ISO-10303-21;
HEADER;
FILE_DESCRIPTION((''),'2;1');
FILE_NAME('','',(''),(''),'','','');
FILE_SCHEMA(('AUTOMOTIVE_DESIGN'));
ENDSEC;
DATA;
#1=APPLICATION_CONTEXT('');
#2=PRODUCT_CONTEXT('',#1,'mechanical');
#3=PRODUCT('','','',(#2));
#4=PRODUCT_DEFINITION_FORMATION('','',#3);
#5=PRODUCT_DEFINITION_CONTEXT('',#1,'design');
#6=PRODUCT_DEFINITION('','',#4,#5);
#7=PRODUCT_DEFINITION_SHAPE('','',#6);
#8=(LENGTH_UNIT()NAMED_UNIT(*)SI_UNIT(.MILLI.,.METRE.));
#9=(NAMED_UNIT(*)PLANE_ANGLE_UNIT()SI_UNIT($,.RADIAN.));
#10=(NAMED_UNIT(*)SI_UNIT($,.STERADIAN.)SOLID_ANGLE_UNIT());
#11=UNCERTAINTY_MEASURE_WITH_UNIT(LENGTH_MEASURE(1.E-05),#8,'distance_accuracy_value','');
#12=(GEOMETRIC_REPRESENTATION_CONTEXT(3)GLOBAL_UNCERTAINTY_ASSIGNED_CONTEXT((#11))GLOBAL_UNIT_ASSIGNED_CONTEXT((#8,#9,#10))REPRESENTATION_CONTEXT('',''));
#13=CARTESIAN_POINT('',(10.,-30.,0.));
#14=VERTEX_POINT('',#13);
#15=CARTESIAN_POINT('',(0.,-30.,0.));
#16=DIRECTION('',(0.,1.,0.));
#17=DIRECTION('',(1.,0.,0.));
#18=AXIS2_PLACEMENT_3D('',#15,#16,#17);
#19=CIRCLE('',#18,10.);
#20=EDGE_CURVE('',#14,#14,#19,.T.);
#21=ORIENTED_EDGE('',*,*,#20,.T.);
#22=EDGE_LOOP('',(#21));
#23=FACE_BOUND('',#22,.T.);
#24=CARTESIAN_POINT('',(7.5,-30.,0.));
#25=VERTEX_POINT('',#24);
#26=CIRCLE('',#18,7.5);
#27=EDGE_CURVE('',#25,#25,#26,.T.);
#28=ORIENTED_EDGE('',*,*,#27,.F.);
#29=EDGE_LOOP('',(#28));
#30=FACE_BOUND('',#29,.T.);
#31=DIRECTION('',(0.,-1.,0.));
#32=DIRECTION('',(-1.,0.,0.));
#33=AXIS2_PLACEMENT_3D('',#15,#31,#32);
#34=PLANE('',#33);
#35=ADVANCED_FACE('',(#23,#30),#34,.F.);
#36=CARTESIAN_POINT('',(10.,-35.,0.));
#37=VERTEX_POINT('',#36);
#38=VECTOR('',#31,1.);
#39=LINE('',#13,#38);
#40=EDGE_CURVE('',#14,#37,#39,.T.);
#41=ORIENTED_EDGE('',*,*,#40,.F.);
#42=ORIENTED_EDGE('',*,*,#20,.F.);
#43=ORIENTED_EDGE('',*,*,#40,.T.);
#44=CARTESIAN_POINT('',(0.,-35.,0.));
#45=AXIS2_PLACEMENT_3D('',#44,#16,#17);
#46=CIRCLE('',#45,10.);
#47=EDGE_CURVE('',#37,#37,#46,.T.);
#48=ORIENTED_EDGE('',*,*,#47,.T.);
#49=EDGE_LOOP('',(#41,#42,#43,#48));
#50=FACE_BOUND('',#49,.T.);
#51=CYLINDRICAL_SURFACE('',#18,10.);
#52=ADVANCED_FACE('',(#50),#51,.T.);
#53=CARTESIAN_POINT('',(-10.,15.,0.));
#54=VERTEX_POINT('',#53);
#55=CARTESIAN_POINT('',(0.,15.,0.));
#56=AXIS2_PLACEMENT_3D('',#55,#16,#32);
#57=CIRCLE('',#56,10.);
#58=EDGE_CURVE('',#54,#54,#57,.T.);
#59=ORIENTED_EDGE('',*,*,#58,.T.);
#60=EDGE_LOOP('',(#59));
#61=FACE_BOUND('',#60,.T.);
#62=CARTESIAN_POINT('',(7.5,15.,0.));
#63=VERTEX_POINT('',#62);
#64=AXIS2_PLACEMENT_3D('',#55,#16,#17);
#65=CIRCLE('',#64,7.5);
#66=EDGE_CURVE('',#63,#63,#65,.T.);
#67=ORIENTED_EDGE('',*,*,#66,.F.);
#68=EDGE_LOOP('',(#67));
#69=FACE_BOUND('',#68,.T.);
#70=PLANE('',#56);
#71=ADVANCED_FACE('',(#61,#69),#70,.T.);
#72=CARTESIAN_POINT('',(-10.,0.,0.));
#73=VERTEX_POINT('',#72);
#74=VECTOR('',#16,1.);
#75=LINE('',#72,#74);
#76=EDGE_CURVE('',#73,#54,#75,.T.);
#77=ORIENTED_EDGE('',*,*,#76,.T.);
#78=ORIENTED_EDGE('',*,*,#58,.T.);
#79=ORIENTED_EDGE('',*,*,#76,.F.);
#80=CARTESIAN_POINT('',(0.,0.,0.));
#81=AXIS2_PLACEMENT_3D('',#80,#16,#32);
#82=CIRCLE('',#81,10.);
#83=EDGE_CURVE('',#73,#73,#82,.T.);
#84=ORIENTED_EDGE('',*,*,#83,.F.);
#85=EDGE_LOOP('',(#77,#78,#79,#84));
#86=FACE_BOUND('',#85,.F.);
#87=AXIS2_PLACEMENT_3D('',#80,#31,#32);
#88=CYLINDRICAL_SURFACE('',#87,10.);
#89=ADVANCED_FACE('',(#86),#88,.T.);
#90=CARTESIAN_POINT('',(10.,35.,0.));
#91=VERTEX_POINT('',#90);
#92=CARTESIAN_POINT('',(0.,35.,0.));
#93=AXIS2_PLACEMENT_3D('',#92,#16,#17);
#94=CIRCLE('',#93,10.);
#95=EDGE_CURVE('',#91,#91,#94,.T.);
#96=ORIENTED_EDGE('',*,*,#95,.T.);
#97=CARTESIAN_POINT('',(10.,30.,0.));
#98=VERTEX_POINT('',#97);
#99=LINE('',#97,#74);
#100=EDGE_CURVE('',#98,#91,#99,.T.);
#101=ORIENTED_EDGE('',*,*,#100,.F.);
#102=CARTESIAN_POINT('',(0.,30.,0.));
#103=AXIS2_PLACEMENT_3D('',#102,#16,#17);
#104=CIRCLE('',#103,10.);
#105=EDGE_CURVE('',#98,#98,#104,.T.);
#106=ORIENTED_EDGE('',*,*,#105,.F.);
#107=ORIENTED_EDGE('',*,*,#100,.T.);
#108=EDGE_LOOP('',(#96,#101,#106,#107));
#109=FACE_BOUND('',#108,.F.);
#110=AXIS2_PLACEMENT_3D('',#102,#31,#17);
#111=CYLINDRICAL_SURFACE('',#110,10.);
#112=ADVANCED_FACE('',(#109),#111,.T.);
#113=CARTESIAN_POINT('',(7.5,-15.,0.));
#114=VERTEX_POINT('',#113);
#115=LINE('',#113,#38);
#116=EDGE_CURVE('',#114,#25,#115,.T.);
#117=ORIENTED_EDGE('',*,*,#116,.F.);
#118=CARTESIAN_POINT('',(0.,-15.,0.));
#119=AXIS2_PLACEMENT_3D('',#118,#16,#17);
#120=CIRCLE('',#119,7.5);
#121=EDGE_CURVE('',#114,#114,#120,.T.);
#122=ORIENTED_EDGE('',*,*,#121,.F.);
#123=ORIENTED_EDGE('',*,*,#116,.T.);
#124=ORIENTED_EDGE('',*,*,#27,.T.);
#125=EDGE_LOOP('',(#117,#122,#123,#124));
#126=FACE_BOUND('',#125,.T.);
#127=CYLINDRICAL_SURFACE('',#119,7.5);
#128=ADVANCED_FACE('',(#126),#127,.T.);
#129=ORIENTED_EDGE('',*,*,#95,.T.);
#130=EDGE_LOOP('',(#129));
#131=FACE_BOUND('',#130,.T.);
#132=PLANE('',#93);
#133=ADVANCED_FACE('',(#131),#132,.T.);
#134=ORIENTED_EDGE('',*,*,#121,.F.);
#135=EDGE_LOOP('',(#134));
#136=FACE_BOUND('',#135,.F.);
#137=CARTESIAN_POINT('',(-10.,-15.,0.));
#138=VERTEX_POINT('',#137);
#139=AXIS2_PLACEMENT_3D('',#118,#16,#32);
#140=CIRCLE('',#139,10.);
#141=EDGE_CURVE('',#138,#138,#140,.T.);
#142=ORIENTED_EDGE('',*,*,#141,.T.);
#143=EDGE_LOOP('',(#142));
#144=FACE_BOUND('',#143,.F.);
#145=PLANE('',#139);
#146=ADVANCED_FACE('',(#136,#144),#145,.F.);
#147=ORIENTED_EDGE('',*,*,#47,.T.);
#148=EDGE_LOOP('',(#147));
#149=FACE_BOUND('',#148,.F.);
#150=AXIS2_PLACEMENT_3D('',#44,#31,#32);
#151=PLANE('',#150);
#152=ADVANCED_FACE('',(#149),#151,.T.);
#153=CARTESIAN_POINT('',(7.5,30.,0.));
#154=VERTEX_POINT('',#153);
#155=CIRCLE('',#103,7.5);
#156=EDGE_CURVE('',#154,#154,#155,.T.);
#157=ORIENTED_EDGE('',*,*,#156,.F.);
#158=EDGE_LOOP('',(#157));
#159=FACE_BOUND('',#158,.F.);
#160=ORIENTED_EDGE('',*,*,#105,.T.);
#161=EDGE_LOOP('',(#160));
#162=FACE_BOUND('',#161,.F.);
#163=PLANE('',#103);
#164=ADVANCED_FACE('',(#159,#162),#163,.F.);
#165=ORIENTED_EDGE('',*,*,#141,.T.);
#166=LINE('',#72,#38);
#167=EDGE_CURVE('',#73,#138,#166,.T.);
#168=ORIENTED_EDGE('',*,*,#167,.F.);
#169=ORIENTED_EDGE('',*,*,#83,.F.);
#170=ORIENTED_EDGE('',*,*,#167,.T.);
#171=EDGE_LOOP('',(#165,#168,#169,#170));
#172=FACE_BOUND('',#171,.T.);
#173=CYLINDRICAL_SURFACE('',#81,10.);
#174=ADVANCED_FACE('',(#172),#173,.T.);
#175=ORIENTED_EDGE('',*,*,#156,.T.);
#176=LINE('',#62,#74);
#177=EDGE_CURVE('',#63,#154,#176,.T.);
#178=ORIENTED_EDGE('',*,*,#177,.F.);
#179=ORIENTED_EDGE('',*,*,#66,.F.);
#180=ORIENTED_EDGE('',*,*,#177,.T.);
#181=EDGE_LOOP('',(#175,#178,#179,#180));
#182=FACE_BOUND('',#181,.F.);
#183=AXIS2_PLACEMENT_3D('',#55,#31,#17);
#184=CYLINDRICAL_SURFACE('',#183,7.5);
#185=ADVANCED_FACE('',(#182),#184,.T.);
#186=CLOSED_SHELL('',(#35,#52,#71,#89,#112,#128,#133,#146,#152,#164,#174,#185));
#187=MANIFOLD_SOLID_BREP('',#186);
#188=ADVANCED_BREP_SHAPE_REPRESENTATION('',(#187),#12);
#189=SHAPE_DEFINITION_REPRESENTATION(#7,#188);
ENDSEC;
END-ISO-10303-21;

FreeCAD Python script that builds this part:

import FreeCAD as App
import Part
import Sketcher
Q = App.Units.Quantity

doc = App.newDocument("Part")
body = doc.addObject("PartDesign::Body", "Body")

# Sketch on XZ plane
sketch1 = body.newObject("Sketcher::SketchObject", "Sketch")
sketch1.AttachmentSupport = (doc.getObject("XZ_Plane"), [""])
sketch1.MapMode = "FlatFace"
sketch1.addGeometry(Part.Circle(App.Vector(0, 0, 0), App.Vector(0, 0, 1), 10), False)
sketch1.addConstraint(Sketcher.Constraint("Coincident", 0, 3, -1, 1))
sketch1.addConstraint(Sketcher.Constraint("Diameter", 0, Q("20 mm")))
pad1 = body.newObject("PartDesign::Pad", "Pad")
pad1.Profile = sketch1
pad1.Length = 30
pad1.Midplane = True

# Sketch on XZ plane
sketch2 = body.newObject("Sketcher::SketchObject", "Sketch001")
sketch2.AttachmentSupport = (doc.getObject("XZ_Plane"), [""])
sketch2.MapMode = "FlatFace"
sketch2.AttachmentOffset = App.Placement(App.Vector(0, 0, -15), App.Rotation())
sketch2.addGeometry(Part.Circle(App.Vector(0, 0, 0), App.Vector(0, 0, 1), 8), False)
sketch2.addConstraint(Sketcher.Constraint("Coincident", 0, 3, -1, 1))
sketch2.addConstraint(Sketcher.Constraint("Diameter", 0, Q("15 mm")))
pad2 = body.newObject("PartDesign::Pad", "Pad001")
pad2.Profile = sketch2
pad2.Length = 15
pad2.Reversed = True

# Sketch on XZ plane
sketch3 = body.newObject("Sketcher::SketchObject", "Sketch002")
sketch3.AttachmentSupport = (doc.getObject("XZ_Plane"), [""])
sketch3.MapMode = "FlatFace"
sketch3.AttachmentOffset = App.Placement(App.Vector(0, 0, -30), App.Rotation())
sketch3.addGeometry(Part.Circle(App.Vector(0, 0, 0), App.Vector(0, 0, 1), 10), False)
sketch3.addConstraint(Sketcher.Constraint("Coincident", 0, 3, -1, 1))
sketch3.addConstraint(Sketcher.Constraint("Diameter", 0, Q("20 mm")))
pad3 = body.newObject("PartDesign::Pad", "Pad002")
pad3.Profile = sketch3
pad3.Length = 5
pad3.Reversed = True
doc.recompute()

mirrored = body.newObject("PartDesign::Mirrored", "Mirrored")
mirrored.Originals = [pad3, pad2]
mirrored.MirrorPlane = (doc.getObject("XZ_Plane"), [""])
body.Tip = mirrored

doc.recompute()
